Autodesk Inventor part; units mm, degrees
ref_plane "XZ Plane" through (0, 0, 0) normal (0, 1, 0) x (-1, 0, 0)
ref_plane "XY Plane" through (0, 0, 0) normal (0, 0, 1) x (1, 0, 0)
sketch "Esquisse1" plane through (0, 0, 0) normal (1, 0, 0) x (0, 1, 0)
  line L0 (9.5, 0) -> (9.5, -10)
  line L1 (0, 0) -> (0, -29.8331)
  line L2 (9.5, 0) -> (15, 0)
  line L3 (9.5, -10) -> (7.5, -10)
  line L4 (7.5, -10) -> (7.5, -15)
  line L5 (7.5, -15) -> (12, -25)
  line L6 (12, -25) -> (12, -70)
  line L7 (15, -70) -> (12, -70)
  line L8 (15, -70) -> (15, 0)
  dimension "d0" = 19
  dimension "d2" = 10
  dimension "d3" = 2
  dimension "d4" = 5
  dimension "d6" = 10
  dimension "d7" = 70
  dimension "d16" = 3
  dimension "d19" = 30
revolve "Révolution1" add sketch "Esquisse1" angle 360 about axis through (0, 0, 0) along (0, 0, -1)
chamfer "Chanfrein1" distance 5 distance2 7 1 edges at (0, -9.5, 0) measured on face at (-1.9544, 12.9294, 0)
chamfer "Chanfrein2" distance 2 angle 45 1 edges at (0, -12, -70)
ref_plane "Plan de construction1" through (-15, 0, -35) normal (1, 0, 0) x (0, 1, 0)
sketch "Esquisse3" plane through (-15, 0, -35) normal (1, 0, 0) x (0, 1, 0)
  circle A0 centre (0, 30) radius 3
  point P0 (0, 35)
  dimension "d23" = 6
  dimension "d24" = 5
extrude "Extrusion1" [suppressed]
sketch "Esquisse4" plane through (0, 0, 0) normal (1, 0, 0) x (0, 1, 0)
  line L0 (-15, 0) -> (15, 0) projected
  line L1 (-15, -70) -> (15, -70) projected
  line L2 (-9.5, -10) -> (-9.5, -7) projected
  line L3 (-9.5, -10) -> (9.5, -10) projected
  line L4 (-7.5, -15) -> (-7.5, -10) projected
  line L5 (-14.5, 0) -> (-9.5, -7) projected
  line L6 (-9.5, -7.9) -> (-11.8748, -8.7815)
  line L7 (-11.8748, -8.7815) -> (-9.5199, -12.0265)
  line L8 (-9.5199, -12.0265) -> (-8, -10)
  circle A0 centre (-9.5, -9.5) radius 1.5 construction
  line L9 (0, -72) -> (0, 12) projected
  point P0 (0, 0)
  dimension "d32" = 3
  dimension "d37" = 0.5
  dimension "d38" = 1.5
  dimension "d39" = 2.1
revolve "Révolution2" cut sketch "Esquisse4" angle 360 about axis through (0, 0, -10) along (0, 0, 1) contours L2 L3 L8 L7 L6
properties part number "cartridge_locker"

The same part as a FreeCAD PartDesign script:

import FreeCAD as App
import Part
import Sketcher
from FreeCAD import Vector
Q = App.Units.Quantity


def edges_at(feature, points):
    """Names of the edges that pass closest to the given points."""
    edges = feature.Shape.Edges
    near = lambda p: min(range(len(edges)), key=lambda i: edges[i].distToShape(Part.Vertex(*p))[0])
    return sorted({f"Edge{near(p) + 1}" for p in points})

doc = App.newDocument("Part")
body = doc.addObject("PartDesign::Body", "Body")

sketch1 = body.newObject("Sketcher::SketchObject", "Sketch")
sketch1.AttachmentSupport = (doc.getObject("YZ_Plane"), [""])
sketch1.MapMode = "FlatFace"
sketch1.addGeometry([
    Part.LineSegment(Vector(15, 0, 0), Vector(9.5, 0, 0)),
    Part.LineSegment(Vector(9.5, 0, 0), Vector(9.5, -10, 0)),
    Part.LineSegment(Vector(9.5, -10, 0), Vector(7.5, -10, 0)),
    Part.LineSegment(Vector(7.5, -10, 0), Vector(7.5, -15, 0)),
    Part.LineSegment(Vector(7.5, -15, 0), Vector(12, -25, 0)),
    Part.LineSegment(Vector(12, -25, 0), Vector(12, -70, 0)),
    Part.LineSegment(Vector(12, -70, 0), Vector(15, -70, 0)),
    Part.LineSegment(Vector(15, -70, 0), Vector(15, 0, 0)),
], False)
sketch1.addConstraint([
    Sketcher.Constraint("Coincident", 0, 2, 1, 1),
    Sketcher.Constraint("Coincident", 1, 2, 2, 1),
    Sketcher.Constraint("Coincident", 2, 2, 3, 1),
    Sketcher.Constraint("Coincident", 3, 2, 4, 1),
    Sketcher.Constraint("Coincident", 4, 2, 5, 1),
    Sketcher.Constraint("Coincident", 5, 2, 6, 1),
    Sketcher.Constraint("Coincident", 6, 2, 7, 1),
    Sketcher.Constraint("Coincident", 7, 2, 0, 1),
    Sketcher.Constraint("Horizontal", 0),
    Sketcher.Constraint("Vertical", 1),
    Sketcher.Constraint("Horizontal", 2),
    Sketcher.Constraint("Vertical", 3),
    Sketcher.Constraint("Vertical", 5),
    Sketcher.Constraint("Horizontal", 6),
    Sketcher.Constraint("Vertical", 7),
    Sketcher.Constraint("PointOnObject", 0, 2, -1),
    Sketcher.Constraint("DistanceX", 2, 2, 2, 1, 2.0),
    Sketcher.Constraint("DistanceX", 6, 1, 6, 2, 3.0),
    Sketcher.Constraint("DistanceY", 1, 2, 1, 1, 10.0),
    Sketcher.Constraint("DistanceY", 3, 2, 3, 1, 5.0),
    Sketcher.Constraint("DistanceY", 7, 1, 7, 2, 70.0),
    Sketcher.Constraint("DistanceY", 4, 2, 3, 2, 10.0),
    Sketcher.Constraint("DistanceX", 0, 2, 0, 1, 5.5),
    Sketcher.Constraint("DistanceX", -1, 1, 4, 2, 12.0),
])
revolution = body.newObject("PartDesign::Revolution", "Revolution")
revolution.Profile = sketch1
revolution.ReferenceAxis = (sketch1, ["V_Axis"])
revolution.Angle = 360
doc.recompute()

chamfer = body.newObject("PartDesign::Chamfer", "Chamfer")
chamfer.Base = (revolution, edges_at(revolution, [(0, -9.5, 0)]))
chamfer.ChamferType = "Two distances"
chamfer.Size = 5
chamfer.Size2 = 7
doc.recompute()

chamfer2 = body.newObject("PartDesign::Chamfer", "Chamfer001")
chamfer2.Base = (chamfer, edges_at(chamfer, [(0, -12, -70)]))
chamfer2.Size = 2

sketch2 = body.newObject("Sketcher::SketchObject", "Sketch001")
sketch2.AttachmentSupport = (doc.getObject("YZ_Plane"), [""])
sketch2.MapMode = "FlatFace"
sketch2.addGeometry([
    Part.LineSegment(Vector(-9.5, -10, 0), Vector(-9.5, -7.9, 0)),
    Part.LineSegment(Vector(-9.5, -7.9, 0), Vector(-11.8748, -8.7815, 0)),
    Part.LineSegment(Vector(-11.8748, -8.7815, 0), Vector(-9.5199, -12.0265, 0)),
    Part.LineSegment(Vector(-9.5199, -12.0265, 0), Vector(-8, -10, 0)),
    Part.LineSegment(Vector(-8, -10, 0), Vector(-9.5, -10, 0)),
], False)
sketch2.addConstraint([
    Sketcher.Constraint("Coincident", 0, 2, 1, 1),
    Sketcher.Constraint("Coincident", 1, 2, 2, 1),
    Sketcher.Constraint("Coincident", 2, 2, 3, 1),
    Sketcher.Constraint("Coincident", 3, 2, 4, 1),
    Sketcher.Constraint("Coincident", 4, 2, 0, 1),
    Sketcher.Constraint("Vertical", 0),
    Sketcher.Constraint("Horizontal", 4),
    Sketcher.Constraint("Equal", 1, 3),
    Sketcher.Constraint("DistanceX", 4, 2, 4, 1, 1.5),
    Sketcher.Constraint("DistanceY", 0, 1, 0, 2, 2.1),
    Sketcher.Constraint("DistanceX", 3, 2, -1, 1, 8.0),
    Sketcher.Constraint("DistanceY", 3, 2, -1, 1, 10.0),
    Sketcher.Constraint("Angle", 3, Q("53.1296 deg")),
    Sketcher.Constraint("DistanceX", 2, 2, -1, 1, 9.52),
    Sketcher.Constraint("DistanceX", 1, 2, 2, 2, 2.355),
])
groove = body.newObject("PartDesign::Groove", "Groove")
groove.Profile = sketch2
groove.ReferenceAxis = (sketch2, ["V_Axis"])
groove.Angle = 360

doc.recompute()
